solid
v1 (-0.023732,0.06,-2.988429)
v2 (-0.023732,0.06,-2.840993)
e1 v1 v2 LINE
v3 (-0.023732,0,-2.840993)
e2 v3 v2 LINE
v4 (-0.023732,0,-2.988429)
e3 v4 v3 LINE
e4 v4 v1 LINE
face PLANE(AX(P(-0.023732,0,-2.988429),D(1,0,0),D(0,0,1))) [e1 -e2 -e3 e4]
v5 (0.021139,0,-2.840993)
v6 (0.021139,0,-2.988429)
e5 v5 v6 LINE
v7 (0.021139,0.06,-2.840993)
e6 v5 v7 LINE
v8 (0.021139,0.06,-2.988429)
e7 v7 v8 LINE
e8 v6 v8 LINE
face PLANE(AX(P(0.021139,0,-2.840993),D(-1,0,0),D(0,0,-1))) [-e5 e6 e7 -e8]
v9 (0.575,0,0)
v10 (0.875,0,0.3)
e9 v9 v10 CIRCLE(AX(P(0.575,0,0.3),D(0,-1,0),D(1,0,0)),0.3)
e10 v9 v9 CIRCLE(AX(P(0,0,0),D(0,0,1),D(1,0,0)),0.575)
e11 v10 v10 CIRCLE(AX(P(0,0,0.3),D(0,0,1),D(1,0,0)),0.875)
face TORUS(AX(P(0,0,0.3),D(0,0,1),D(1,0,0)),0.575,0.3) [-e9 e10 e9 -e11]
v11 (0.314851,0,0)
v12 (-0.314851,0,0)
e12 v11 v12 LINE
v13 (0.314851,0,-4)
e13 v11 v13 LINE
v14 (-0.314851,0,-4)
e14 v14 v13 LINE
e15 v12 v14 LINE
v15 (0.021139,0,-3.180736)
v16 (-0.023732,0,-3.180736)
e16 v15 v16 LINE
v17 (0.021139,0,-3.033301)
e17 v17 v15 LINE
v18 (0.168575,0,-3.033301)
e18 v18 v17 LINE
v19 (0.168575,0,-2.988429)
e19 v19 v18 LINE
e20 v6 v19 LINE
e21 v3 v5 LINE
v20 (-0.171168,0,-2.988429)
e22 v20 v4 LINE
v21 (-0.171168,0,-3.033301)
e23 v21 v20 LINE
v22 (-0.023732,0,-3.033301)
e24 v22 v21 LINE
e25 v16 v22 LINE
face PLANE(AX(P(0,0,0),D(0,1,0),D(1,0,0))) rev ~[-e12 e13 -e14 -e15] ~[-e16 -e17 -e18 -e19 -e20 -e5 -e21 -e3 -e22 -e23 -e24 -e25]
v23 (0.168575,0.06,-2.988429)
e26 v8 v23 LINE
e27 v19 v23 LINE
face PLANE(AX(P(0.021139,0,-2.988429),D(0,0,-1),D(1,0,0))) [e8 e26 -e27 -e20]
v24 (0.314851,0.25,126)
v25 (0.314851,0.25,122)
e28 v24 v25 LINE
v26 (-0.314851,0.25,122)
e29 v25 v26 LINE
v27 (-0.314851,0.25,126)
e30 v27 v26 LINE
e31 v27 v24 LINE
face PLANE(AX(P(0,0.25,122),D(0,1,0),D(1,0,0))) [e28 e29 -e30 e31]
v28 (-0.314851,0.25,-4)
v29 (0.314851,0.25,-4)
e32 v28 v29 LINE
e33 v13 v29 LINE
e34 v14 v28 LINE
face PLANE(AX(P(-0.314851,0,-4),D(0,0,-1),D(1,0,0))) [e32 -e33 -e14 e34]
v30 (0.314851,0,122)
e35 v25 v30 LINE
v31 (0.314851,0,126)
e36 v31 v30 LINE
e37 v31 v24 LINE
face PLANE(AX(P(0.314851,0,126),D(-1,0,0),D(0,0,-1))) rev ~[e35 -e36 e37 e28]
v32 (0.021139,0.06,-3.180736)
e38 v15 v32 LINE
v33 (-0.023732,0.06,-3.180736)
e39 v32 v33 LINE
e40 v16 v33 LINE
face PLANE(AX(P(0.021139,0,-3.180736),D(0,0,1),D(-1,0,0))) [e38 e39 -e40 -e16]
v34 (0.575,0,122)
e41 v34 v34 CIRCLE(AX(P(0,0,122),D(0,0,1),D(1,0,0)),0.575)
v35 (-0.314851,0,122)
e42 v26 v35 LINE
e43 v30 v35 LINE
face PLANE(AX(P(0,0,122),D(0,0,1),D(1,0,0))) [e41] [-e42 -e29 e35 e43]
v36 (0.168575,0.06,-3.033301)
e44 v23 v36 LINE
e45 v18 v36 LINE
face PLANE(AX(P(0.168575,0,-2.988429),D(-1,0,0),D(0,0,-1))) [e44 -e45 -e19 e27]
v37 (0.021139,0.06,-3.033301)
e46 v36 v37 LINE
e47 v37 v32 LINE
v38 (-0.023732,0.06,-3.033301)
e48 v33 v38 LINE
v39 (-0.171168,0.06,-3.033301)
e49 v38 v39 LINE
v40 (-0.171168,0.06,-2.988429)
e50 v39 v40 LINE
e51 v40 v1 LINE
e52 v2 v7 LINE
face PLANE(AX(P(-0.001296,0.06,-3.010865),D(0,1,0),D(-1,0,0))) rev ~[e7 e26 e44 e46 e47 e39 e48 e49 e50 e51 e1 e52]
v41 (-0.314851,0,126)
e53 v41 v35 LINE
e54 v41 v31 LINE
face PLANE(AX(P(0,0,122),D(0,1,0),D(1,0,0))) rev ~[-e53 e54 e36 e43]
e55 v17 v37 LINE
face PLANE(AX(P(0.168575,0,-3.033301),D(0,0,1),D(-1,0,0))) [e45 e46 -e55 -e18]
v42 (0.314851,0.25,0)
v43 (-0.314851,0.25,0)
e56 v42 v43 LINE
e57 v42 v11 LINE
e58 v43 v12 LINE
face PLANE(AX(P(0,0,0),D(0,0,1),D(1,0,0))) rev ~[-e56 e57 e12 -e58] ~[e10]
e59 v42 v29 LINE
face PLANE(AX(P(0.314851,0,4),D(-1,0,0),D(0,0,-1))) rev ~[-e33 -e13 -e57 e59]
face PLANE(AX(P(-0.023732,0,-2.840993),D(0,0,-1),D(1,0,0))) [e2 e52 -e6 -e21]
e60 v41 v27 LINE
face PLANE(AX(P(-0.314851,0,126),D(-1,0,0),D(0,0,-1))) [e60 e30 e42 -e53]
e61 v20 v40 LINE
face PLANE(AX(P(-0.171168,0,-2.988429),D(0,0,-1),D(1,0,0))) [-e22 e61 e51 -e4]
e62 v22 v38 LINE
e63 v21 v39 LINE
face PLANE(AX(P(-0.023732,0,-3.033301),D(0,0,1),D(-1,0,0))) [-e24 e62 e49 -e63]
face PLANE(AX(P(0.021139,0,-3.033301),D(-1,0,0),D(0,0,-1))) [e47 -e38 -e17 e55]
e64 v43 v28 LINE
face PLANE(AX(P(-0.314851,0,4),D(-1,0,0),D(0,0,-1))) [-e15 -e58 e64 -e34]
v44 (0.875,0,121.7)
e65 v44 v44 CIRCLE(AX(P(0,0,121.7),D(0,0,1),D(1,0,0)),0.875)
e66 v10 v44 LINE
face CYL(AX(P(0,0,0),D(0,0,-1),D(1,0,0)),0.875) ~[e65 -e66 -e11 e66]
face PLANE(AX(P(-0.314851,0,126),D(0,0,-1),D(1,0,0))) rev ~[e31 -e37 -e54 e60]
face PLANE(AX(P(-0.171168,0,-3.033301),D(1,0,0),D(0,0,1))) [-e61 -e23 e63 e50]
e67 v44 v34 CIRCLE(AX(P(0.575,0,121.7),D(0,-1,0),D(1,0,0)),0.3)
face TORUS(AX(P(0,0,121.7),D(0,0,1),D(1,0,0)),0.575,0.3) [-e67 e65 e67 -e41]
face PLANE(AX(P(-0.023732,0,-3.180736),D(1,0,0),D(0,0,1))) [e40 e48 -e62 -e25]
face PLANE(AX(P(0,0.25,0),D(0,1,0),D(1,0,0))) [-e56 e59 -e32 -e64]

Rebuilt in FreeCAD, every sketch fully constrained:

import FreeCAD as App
import Part
import Sketcher
from FreeCAD import Vector


def edges_at(feature, points):
    """Names of the edges that pass closest to the given points."""
    edges = feature.Shape.Edges
    near = lambda p: min(range(len(edges)), key=lambda i: edges[i].distToShape(Part.Vertex(*p))[0])
    return sorted({f"Edge{near(p) + 1}" for p in points})

doc = App.newDocument("Part")
body = doc.addObject("PartDesign::Body", "Body")

# Sketch on XY plane
sketch1 = body.newObject("Sketcher::SketchObject", "Sketch")
sketch1.AttachmentSupport = (doc.getObject("XY_Plane"), [""])
sketch1.MapMode = "FlatFace"
sketch1.addGeometry(Part.Circle(Vector(0, 0, 0), Vector(0, 0, 1), 0.875), False)
sketch1.addConstraint(Sketcher.Constraint("Coincident", 0, 3, -1, 1))
sketch1.addConstraint(Sketcher.Constraint("Diameter", 0, 1.75))
pad1 = body.newObject("PartDesign::Pad", "Pad")
pad1.Profile = sketch1
pad1.Length = 122

# Sketch on XZ plane
sketch2 = body.newObject("Sketcher::SketchObject", "Sketch001")
sketch2.AttachmentSupport = (doc.getObject("XZ_Plane"), [""])
sketch2.MapMode = "FlatFace"
sketch2.addGeometry(Part.LineSegment(Vector(-0.314851, -4, 0), Vector(-0.314851, 4, 0)), False)
sketch2.addGeometry(Part.LineSegment(Vector(-0.314851, 4, 0), Vector(0.314851, 4, 0)), False)
sketch2.addGeometry(Part.LineSegment(Vector(0.314851, 4, 0), Vector(0.314851, -4, 0)), False)
sketch2.addGeometry(Part.LineSegment(Vector(0.314851, -4, 0), Vector(-0.314851, -4, 0)), False)
sketch2.addGeometry(Part.LineSegment(Vector(-0.314851, 118, 0), Vector(-0.314851, 126, 0)), False)
sketch2.addGeometry(Part.LineSegment(Vector(-0.314851, 126, 0), Vector(0.314851, 126, 0)), False)
sketch2.addGeometry(Part.LineSegment(Vector(0.314851, 126, 0), Vector(0.314851, 118, 0)), False)
sketch2.addGeometry(Part.LineSegment(Vector(0.314851, 118, 0), Vector(-0.314851, 118, 0)), False)
sketch2.addConstraint(Sketcher.Constraint("Coincident", 0, 2, 1, 1))
sketch2.addConstraint(Sketcher.Constraint("Coincident", 1, 2, 2, 1))
sketch2.addConstraint(Sketcher.Constraint("Coincident", 2, 2, 3, 1))
sketch2.addConstraint(Sketcher.Constraint("Coincident", 3, 2, 0, 1))
sketch2.addConstraint(Sketcher.Constraint("Coincident", 4, 2, 5, 1))
sketch2.addConstraint(Sketcher.Constraint("Coincident", 5, 2, 6, 1))
sketch2.addConstraint(Sketcher.Constraint("Coincident", 6, 2, 7, 1))
sketch2.addConstraint(Sketcher.Constraint("Coincident", 7, 2, 4, 1))
sketch2.addConstraint(Sketcher.Constraint("Vertical", 0))
sketch2.addConstraint(Sketcher.Constraint("Horizontal", 1))
sketch2.addConstraint(Sketcher.Constraint("Vertical", 2))
sketch2.addConstraint(Sketcher.Constraint("Horizontal", 3))
sketch2.addConstraint(Sketcher.Constraint("Vertical", 4))
sketch2.addConstraint(Sketcher.Constraint("Horizontal", 5))
sketch2.addConstraint(Sketcher.Constraint("Vertical", 6))
sketch2.addConstraint(Sketcher.Constraint("Horizontal", 7))
sketch2.addConstraint(Sketcher.Constraint("Symmetric", 0, 2, 2, 2, -1, 1))
sketch2.addConstraint(Sketcher.Constraint("Vertical", 3, 2, 4, 2))
sketch2.addConstraint(Sketcher.Constraint("Vertical", 2, 2, 5, 2))
sketch2.addConstraint(Sketcher.Constraint("Equal", 2, 4))
sketch2.addConstraint(Sketcher.Constraint("DistanceY", 0, 1, 0, 2, 8.0))
sketch2.addConstraint(Sketcher.Constraint("DistanceY", -1, 1, 4, 2, 126.0))
sketch2.addConstraint(Sketcher.Constraint("DistanceX", 1, 1, 1, 2, 0.629703))
pad2 = body.newObject("PartDesign::Pad", "Pad001")
pad2.Profile = sketch2
pad2.Length = 0.25
pad2.Reversed = True
doc.recompute()

fillet = body.newObject("PartDesign::Fillet", "Fillet")
fillet.Base = (pad2, edges_at(pad2, [(-0.875, 0, 0), (-0.875, 0, 122)]))
fillet.Radius = 0.3

# Sketch on XZ plane
sketch3 = body.newObject("Sketcher::SketchObject", "Sketch002")
sketch3.AttachmentSupport = (doc.getObject("XZ_Plane"), [""])
sketch3.MapMode = "FlatFace"
sketch3.addGeometry(Part.LineSegment(Vector(-0.023732, -2.840993, 0), Vector(-0.023732, -2.988429, 0)), False)
sketch3.addGeometry(Part.LineSegment(Vector(-0.023732, -2.988429, 0), Vector(-0.171168, -2.988429, 0)), False)
sketch3.addGeometry(Part.LineSegment(Vector(-0.171168, -2.988429, 0), Vector(-0.171168, -3.033301, 0)), False)
sketch3.addGeometry(Part.LineSegment(Vector(-0.171168, -3.033301, 0), Vector(-0.023732, -3.033301, 0)), False)
sketch3.addGeometry(Part.LineSegment(Vector(-0.023732, -3.033301, 0), Vector(-0.023732, -3.180736, 0)), False)
sketch3.addGeometry(Part.LineSegment(Vector(-0.023732, -3.180736, 0), Vector(0.021139, -3.180736, 0)), False)
sketch3.addGeometry(Part.LineSegment(Vector(0.021139, -3.180736, 0), Vector(0.021139, -3.033301, 0)), False)
sketch3.addGeometry(Part.LineSegment(Vector(0.021139, -3.033301, 0), Vector(0.168575, -3.033301, 0)), False)
sketch3.addGeometry(Part.LineSegment(Vector(0.168575, -3.033301, 0), Vector(0.168575, -2.988429, 0)), False)
sketch3.addGeometry(Part.LineSegment(Vector(0.168575, -2.988429, 0), Vector(0.021139, -2.988429, 0)), False)
sketch3.addGeometry(Part.LineSegment(Vector(0.021139, -2.988429, 0), Vector(0.021139, -2.840993, 0)), False)
sketch3.addGeometry(Part.LineSegment(Vector(0.021139, -2.840993, 0), Vector(-0.023732, -2.840993, 0)), False)
sketch3.addConstraint(Sketcher.Constraint("Coincident", 0, 2, 1, 1))
sketch3.addConstraint(Sketcher.Constraint("Coincident", 1, 2, 2, 1))
sketch3.addConstraint(Sketcher.Constraint("Coincident", 2, 2, 3, 1))
sketch3.addConstraint(Sketcher.Constraint("Coincident", 3, 2, 4, 1))
sketch3.addConstraint(Sketcher.Constraint("Coincident", 4, 2, 5, 1))
sketch3.addConstraint(Sketcher.Constraint("Coincident", 5, 2, 6, 1))
sketch3.addConstraint(Sketcher.Constraint("Coincident", 6, 2, 7, 1))
sketch3.addConstraint(Sketcher.Constraint("Coincident", 7, 2, 8, 1))
sketch3.addConstraint(Sketcher.Constraint("Coincident", 8, 2, 9, 1))
sketch3.addConstraint(Sketcher.Constraint("Coincident", 9, 2, 10, 1))
sketch3.addConstraint(Sketcher.Constraint("Coincident", 10, 2, 11, 1))
sketch3.addConstraint(Sketcher.Constraint("Coincident", 11, 2, 0, 1))
sketch3.addConstraint(Sketcher.Constraint("Vertical", 0))
sketch3.addConstraint(Sketcher.Constraint("Horizontal", 1))
sketch3.addConstraint(Sketcher.Constraint("Vertical", 2))
sketch3.addConstraint(Sketcher.Constraint("Horizontal", 3))
sketch3.addConstraint(Sketcher.Constraint("Vertical", 4))
sketch3.addConstraint(Sketcher.Constraint("Horizontal", 5))
sketch3.addConstraint(Sketcher.Constraint("Vertical", 6))
sketch3.addConstraint(Sketcher.Constraint("Horizontal", 7))
sketch3.addConstraint(Sketcher.Constraint("Vertical", 8))
sketch3.addConstraint(Sketcher.Constraint("Horizontal", 9))
sketch3.addConstraint(Sketcher.Constraint("Vertical", 10))
sketch3.addConstraint(Sketcher.Constraint("Horizontal", 11))
sketch3.addConstraint(Sketcher.Constraint("Horizontal", 3, 2, 6, 2))
sketch3.addConstraint(Sketcher.Constraint("Horizontal", 1, 2, 8, 2))
sketch3.addConstraint(Sketcher.Constraint("Vertical", 0, 2, 3, 2))
sketch3.addConstraint(Sketcher.Constraint("Vertical", 6, 2, 9, 2))
sketch3.addConstraint(Sketcher.Constraint("Equal", 3, 7))
sketch3.addConstraint(Sketcher.Constraint("Equal", 9, 0))
sketch3.addConstraint(Sketcher.Constraint("Equal", 11, 2))
sketch3.addConstraint(Sketcher.Constraint("Equal", 0, 4))
sketch3.addConstraint(Sketcher.Constraint("DistanceX", 5, 1, 5, 2, 0.044872))
sketch3.addConstraint(Sketcher.Constraint("DistanceY", 2, 2, -1, 1, 3.033301))
sketch3.addConstraint(Sketcher.Constraint("DistanceX", 1, 2, 1, 1, 0.147436))
sketch3.addConstraint(Sketcher.Constraint("DistanceX", 1, 2, -1, 1, 0.171168))
pocket1 = body.newObject("PartDesign::Pocket", "Pocket")
pocket1.Profile = sketch3
pocket1.Length = 0.06

doc.recompute()
